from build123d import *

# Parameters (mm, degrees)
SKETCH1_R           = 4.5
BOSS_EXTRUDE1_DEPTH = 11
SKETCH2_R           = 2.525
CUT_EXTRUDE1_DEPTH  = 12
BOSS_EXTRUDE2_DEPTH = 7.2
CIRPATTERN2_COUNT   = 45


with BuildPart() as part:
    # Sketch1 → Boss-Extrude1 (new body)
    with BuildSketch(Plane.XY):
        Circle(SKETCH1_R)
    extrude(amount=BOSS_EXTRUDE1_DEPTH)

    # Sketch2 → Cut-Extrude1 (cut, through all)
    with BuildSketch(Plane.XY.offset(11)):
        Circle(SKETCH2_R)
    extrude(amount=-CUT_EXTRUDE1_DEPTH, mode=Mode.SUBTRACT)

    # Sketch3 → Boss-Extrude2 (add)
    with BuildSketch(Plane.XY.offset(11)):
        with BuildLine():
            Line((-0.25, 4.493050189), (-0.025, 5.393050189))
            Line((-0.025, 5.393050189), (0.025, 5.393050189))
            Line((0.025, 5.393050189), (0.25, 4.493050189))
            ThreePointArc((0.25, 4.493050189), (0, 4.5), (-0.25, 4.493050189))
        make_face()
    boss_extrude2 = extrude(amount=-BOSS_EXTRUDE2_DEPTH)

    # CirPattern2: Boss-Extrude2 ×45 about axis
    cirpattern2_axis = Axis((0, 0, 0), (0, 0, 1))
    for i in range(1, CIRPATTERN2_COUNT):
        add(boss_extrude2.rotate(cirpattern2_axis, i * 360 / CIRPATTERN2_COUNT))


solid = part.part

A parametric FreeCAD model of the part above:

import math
import FreeCAD as App
import Part
import Sketcher
from FreeCAD import Vector

doc = App.newDocument("Part")
body = doc.addObject("PartDesign::Body", "Body")

# Sketch on XY plane
sketch1 = doc.addObject("Sketcher::SketchObject", "Sketch")
body.addObject(sketch1)
sketch1.AttachmentSupport = (doc.XY_Plane, [""])
sketch1.MapMode = "FlatFace"
sketch1.addGeometry(Part.Circle(Vector(0, 0, 0), Vector(0, 0, 1), 4.5), False)
sketch1.addConstraint(Sketcher.Constraint("Coincident", 0, 3, -1, 1))
sketch1.addConstraint(Sketcher.Constraint("Diameter", 0, 9.0))
pad1 = doc.addObject("PartDesign::Pad", "Pad")
body.addObject(pad1)
pad1.Profile = sketch1
pad1.Length = 11

# Sketch on XY plane
sketch2 = doc.addObject("Sketcher::SketchObject", "Sketch001")
body.addObject(sketch2)
sketch2.AttachmentSupport = (doc.XY_Plane, [""])
sketch2.MapMode = "FlatFace"
sketch2.AttachmentOffset = App.Placement(Vector(0, 0, 11), App.Rotation())
sketch2.addGeometry(Part.Circle(Vector(0, 0, 0), Vector(0, 0, 1), 2.5), False)
sketch2.addConstraint(Sketcher.Constraint("Coincident", 0, 3, -1, 1))
sketch2.addConstraint(Sketcher.Constraint("Diameter", 0, 5.05))
pocket1 = doc.addObject("PartDesign::Pocket", "Pocket")
body.addObject(pocket1)
pocket1.Profile = sketch2
pocket1.Type = "ThroughAll"

# Sketch on XY plane
sketch3 = doc.addObject("Sketcher::SketchObject", "Sketch002")
body.addObject(sketch3)
sketch3.AttachmentSupport = (doc.XY_Plane, [""])
sketch3.MapMode = "FlatFace"
sketch3.AttachmentOffset = App.Placement(Vector(0, 0, 11), App.Rotation())
sketch3.addGeometry(Part.LineSegment(Vector(-0.03, 5.39, 0), Vector(-0.25, 4.49, 0)), False)
sketch3.addGeometry(Part.ArcOfCircle(Part.Circle(Vector(0, 0, 0), Vector(0, 0, 1), 4.5), math.radians(86.82), math.radians(93.18)), False)
sketch3.addGeometry(Part.LineSegment(Vector(0.25, 4.49, 0), Vector(0.03, 5.39, 0)), False)
sketch3.addGeometry(Part.LineSegment(Vector(0.03, 5.39, 0), Vector(-0.03, 5.39, 0)), False)
sketch3.addConstraint(Sketcher.Constraint("Coincident", 0, 2, 1, 2))
sketch3.addConstraint(Sketcher.Constraint("Coincident", 1, 1, 2, 1))
sketch3.addConstraint(Sketcher.Constraint("Coincident", 2, 2, 3, 1))
sketch3.addConstraint(Sketcher.Constraint("Coincident", 3, 2, 0, 1))
sketch3.addConstraint(Sketcher.Constraint("Horizontal", 3))
sketch3.addConstraint(Sketcher.Constraint("Coincident", 1, 3, -1, 1))
sketch3.addConstraint(Sketcher.Constraint("Horizontal", 0, 2, 1, 1))
sketch3.addConstraint(Sketcher.Constraint("Equal", 0, 2))
sketch3.addConstraint(Sketcher.Constraint("Radius", 1, 4.5))
sketch3.addConstraint(Sketcher.Constraint("DistanceX", 3, 2, 3, 1, 0.05))
sketch3.addConstraint(Sketcher.Constraint("DistanceX", 0, 2, 1, 1, 0.5))
sketch3.addConstraint(Sketcher.Constraint("DistanceY", 1, 1, 2, 2, 0.9))
pad2 = doc.addObject("PartDesign::Pad", "Pad001")
body.addObject(pad2)
pad2.Profile = sketch3
pad2.Length = 7.2
pad2.Reversed = True
doc.recompute()

polarpattern = doc.addObject("PartDesign::PolarPattern", "PolarPattern")
body.addObject(polarpattern)
polarpattern.Originals = [pad2]
polarpattern.Axis = (doc.Z_Axis, [""])
polarpattern.Angle = 360
polarpattern.Occurrences = 45
body.Tip = polarpattern

doc.recompute()
